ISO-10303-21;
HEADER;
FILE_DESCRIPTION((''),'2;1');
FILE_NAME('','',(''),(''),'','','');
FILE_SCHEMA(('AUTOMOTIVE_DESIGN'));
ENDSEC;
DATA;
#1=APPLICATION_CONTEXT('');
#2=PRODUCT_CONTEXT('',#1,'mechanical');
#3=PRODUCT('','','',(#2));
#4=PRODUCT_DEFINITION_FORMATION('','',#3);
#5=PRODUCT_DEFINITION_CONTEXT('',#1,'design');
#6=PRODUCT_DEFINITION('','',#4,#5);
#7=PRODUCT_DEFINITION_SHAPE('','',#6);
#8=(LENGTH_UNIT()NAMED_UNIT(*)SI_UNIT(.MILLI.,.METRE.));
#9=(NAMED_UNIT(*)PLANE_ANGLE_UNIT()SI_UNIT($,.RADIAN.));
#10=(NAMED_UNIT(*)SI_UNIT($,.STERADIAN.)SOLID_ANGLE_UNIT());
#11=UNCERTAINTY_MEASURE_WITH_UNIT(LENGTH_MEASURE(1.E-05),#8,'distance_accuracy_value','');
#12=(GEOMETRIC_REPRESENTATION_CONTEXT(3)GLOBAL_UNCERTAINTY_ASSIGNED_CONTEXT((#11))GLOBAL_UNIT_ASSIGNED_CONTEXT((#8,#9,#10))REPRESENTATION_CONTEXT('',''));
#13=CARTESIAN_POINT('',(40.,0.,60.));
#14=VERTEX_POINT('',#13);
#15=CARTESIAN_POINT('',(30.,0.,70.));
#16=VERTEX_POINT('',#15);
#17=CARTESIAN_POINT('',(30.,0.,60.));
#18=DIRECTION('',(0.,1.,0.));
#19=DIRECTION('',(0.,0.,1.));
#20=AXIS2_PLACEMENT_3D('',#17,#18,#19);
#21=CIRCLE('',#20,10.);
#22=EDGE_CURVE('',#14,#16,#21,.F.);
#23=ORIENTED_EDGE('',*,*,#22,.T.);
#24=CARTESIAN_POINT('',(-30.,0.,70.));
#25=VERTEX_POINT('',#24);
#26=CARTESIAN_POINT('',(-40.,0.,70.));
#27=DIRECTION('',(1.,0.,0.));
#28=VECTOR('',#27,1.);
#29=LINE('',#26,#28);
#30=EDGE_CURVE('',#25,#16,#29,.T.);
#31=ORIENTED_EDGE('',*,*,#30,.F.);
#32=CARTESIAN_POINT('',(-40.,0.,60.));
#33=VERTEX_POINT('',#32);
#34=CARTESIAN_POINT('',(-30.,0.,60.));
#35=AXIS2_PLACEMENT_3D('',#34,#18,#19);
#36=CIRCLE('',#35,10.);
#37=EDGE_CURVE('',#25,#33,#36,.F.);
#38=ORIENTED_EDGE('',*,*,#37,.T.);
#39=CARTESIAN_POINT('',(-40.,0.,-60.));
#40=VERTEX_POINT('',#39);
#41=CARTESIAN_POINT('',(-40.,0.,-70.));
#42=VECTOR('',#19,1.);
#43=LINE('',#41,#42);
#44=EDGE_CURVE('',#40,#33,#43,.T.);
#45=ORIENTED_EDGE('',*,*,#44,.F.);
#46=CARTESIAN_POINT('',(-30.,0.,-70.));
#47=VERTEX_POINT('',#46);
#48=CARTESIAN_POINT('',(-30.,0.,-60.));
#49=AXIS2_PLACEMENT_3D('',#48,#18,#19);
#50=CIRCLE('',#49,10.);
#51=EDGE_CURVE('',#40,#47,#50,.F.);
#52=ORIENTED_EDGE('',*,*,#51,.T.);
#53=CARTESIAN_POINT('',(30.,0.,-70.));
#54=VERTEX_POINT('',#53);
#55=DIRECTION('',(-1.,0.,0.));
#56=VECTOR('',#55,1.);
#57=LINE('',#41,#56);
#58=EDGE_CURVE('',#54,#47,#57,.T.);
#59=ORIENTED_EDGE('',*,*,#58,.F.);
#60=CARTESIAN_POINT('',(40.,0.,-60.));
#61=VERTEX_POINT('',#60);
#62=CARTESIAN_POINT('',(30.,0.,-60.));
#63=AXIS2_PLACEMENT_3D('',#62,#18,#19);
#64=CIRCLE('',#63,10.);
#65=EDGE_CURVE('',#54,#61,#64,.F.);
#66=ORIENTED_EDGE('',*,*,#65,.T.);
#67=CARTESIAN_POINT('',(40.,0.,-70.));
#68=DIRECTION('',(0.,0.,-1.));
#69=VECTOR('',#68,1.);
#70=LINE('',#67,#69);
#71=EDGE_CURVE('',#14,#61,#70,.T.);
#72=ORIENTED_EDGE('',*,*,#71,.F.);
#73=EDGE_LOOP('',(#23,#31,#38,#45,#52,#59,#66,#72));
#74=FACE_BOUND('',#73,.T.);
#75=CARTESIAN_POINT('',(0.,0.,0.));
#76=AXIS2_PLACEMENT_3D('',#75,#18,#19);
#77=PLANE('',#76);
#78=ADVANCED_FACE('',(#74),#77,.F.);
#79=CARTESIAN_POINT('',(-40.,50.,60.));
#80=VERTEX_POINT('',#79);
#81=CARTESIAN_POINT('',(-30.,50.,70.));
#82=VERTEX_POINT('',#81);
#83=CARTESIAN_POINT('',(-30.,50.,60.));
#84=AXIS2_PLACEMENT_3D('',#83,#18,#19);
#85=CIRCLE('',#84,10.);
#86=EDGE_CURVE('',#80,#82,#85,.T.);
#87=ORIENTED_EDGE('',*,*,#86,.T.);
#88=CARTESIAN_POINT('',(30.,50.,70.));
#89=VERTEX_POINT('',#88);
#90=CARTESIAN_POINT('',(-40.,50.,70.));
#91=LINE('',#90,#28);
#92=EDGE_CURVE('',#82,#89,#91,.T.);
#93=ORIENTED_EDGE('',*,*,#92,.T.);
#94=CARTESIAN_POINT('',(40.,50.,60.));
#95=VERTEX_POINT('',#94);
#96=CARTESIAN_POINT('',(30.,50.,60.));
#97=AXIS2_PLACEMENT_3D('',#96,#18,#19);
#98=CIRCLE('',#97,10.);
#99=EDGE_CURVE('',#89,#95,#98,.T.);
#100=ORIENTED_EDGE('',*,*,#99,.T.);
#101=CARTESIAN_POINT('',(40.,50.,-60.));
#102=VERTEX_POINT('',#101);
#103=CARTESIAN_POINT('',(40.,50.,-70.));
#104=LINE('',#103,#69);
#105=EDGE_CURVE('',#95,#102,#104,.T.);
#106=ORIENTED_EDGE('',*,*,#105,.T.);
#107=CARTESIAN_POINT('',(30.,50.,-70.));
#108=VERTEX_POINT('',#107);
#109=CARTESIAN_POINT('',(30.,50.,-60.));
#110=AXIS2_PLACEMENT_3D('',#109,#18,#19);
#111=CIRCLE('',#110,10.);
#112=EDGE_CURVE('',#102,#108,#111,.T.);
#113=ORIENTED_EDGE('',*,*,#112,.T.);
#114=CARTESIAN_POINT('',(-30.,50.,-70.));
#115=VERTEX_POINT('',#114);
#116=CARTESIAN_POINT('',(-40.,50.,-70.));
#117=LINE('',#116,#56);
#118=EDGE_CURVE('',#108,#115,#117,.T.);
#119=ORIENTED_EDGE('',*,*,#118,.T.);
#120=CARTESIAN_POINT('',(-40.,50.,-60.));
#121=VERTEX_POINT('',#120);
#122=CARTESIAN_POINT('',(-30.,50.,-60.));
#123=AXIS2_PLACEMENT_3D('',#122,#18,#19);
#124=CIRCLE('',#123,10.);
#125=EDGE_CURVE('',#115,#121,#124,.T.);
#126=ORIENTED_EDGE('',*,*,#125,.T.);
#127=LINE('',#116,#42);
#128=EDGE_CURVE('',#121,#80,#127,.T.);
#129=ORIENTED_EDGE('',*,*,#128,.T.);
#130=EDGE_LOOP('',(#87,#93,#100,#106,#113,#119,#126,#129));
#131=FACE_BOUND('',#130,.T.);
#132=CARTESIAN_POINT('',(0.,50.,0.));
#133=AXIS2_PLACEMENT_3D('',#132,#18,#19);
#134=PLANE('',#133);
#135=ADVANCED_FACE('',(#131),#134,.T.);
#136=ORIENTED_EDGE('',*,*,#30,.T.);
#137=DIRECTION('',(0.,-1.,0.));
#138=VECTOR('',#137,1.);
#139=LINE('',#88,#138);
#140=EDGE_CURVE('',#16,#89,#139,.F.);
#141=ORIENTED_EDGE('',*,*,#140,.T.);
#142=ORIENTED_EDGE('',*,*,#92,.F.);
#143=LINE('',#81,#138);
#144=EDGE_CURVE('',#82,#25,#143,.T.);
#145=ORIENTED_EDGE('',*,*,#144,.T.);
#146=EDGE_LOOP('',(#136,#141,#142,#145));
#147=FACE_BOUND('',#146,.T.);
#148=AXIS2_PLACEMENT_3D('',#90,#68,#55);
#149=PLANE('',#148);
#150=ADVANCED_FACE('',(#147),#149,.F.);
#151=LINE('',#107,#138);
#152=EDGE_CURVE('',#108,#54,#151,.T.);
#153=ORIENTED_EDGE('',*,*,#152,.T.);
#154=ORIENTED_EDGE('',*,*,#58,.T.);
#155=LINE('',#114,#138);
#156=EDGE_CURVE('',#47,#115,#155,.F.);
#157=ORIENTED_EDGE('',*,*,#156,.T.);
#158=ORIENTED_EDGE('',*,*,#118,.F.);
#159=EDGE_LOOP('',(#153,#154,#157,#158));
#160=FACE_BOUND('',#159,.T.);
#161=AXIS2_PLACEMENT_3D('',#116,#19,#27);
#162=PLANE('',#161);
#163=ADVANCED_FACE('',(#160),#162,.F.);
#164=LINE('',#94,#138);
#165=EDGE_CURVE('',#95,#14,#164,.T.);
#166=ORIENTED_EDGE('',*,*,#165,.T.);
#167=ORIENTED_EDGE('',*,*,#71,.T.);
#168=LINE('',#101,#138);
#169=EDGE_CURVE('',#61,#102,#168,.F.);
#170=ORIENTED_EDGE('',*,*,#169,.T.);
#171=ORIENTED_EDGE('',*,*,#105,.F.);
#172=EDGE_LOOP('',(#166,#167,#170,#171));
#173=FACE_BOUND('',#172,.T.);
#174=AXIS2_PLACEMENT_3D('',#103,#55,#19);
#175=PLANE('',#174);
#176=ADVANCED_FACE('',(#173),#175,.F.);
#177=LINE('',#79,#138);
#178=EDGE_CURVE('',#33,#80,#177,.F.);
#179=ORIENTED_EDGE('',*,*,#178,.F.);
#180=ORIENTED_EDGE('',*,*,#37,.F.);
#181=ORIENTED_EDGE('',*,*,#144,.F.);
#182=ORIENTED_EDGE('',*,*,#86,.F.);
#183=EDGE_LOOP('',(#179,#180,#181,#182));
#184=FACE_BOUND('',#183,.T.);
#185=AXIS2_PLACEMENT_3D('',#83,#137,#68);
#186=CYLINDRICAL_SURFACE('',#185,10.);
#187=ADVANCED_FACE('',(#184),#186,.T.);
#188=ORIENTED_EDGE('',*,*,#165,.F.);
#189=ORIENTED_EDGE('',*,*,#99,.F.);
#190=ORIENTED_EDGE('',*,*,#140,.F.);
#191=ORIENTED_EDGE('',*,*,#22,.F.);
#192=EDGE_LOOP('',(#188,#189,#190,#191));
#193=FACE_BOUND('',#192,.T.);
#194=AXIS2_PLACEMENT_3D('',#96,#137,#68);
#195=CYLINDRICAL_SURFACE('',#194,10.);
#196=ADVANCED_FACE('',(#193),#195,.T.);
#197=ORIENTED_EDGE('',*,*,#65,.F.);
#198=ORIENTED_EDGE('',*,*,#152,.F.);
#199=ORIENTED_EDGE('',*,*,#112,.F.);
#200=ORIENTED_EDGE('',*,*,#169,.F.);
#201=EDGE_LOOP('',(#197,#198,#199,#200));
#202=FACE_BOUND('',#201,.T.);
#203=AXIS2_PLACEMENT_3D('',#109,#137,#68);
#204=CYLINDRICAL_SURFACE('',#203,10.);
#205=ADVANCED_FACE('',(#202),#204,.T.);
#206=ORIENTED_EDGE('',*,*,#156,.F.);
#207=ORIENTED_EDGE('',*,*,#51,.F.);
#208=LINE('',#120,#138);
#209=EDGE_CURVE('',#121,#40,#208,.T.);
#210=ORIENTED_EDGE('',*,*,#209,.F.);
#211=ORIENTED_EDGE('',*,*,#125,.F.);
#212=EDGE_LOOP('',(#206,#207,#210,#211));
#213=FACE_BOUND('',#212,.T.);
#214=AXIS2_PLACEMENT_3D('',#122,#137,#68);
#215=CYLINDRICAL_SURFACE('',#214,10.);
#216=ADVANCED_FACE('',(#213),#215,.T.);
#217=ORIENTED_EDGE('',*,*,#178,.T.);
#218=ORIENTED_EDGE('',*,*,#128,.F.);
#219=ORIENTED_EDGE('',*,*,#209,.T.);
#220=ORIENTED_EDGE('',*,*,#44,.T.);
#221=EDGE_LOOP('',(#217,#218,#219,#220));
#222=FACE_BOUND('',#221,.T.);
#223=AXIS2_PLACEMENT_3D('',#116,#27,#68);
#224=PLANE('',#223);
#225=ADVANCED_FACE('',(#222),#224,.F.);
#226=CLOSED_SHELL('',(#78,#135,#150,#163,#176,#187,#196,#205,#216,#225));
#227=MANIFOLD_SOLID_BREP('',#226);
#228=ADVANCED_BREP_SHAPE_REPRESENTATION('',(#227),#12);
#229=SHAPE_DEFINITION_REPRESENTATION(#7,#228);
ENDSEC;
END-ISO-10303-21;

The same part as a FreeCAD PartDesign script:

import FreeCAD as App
import Part
import Sketcher
from FreeCAD import Vector


def edges_at(feature, points):
    """Names of the edges that pass closest to the given points."""
    edges = feature.Shape.Edges
    near = lambda p: min(range(len(edges)), key=lambda i: edges[i].distToShape(Part.Vertex(*p))[0])
    return sorted({f"Edge{near(p) + 1}" for p in points})


def add_polygon(sketch, points):
    """Adds a closed chain of lines whose ends are joined by coincident constraints."""
    first, n = sketch.GeometryCount, len(points)
    for a, b in zip(points, points[1:] + points[:1]):
        sketch.addGeometry(Part.LineSegment(App.Vector(*a, 0), App.Vector(*b, 0)), False)
    for i in range(n):
        sketch.addConstraint(Sketcher.Constraint("Coincident", first + i, 2, first + (i + 1) % n, 1))

doc = App.newDocument("Part")
body = doc.addObject("PartDesign::Body", "Body")

# Sketch on XZ plane
sketch1 = body.newObject("Sketcher::SketchObject", "Sketch")
sketch1.AttachmentSupport = (doc.getObject("XZ_Plane"), [""])
sketch1.MapMode = "FlatFace"
add_polygon(sketch1, [(-40, -70), (-40, 70), (40, 70), (40, -70)])  # lines 0-3
sketch1.addConstraint([
    Sketcher.Constraint("Vertical", 0),
    Sketcher.Constraint("Horizontal", 1),
    Sketcher.Constraint("Vertical", 2),
    Sketcher.Constraint("Horizontal", 3),
    Sketcher.Constraint("Symmetric", 0, 2, 2, 2, -1, 1),
    Sketcher.Constraint("DistanceX", 1, 1, 1, 2, 80.0),
    Sketcher.Constraint("DistanceY", 0, 1, 0, 2, 140.0),
])
pad1 = body.newObject("PartDesign::Pad", "Pad")
pad1.Profile = sketch1
pad1.Length = 50
pad1.Reversed = True
doc.recompute()

fillet = body.newObject("PartDesign::Fillet", "Fillet")
fillet.Base = (pad1, edges_at(pad1, [
    (40, 25, 70),
    (-40, 25, 70),
    (-40, 25, -70),
    (40, 25, -70),
]))
fillet.Radius = 10

doc.recompute()
